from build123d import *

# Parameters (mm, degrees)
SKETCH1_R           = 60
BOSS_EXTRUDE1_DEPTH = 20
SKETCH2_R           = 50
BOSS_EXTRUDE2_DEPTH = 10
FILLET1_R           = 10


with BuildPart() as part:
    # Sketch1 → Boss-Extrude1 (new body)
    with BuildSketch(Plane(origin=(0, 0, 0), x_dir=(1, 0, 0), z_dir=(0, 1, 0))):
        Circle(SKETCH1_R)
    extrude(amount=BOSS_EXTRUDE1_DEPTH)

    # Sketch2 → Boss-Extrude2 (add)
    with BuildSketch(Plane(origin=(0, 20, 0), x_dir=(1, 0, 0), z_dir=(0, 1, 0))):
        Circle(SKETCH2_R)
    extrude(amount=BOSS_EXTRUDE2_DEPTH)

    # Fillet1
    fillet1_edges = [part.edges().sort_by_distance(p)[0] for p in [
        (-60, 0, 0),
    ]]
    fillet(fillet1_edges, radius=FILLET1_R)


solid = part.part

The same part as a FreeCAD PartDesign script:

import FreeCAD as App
import Part
import Sketcher
from FreeCAD import Vector
Q = App.Units.Quantity


def edges_at(feature, points):
    """Names of the edges that pass closest to the given points."""
    edges = feature.Shape.Edges
    near = lambda p: min(range(len(edges)), key=lambda i: edges[i].distToShape(Part.Vertex(*p))[0])
    return sorted({f"Edge{near(p) + 1}" for p in points})

doc = App.newDocument("Part")
params = doc.addObject("Spreadsheet::Sheet", "Params")
for row, (alias, value) in enumerate([
    ("sketch1_diameter", "120 mm"),
    ("pad1_length", "20 mm"),
    ("sketch2_diameter", "100 mm"),
    ("pad2_length", "10 mm"),
    ("fillet_radius", "10 mm"),
], start=1):
    params.set(f"A{row}", alias)
    params.set(f"B{row}", "=" + value)
    params.setAlias(f"B{row}", alias)

body = doc.addObject("PartDesign::Body", "Body")

sketch1 = body.newObject("Sketcher::SketchObject", "Sketch")
sketch1.AttachmentSupport = (doc.getObject("XZ_Plane"), [""])
sketch1.MapMode = "FlatFace"
sketch1.addGeometry(Part.Circle(Vector(0, 0, 0), Vector(0, 0, 1), 60), False)
sketch1.addConstraint([
    Sketcher.Constraint("Coincident", 0, 3, -1, 1),
    Sketcher.Constraint("Diameter", 0, Q("120 mm")),
])
sketch1.setExpression("Constraints[1]", "Params.sketch1_diameter")
pad1 = body.newObject("PartDesign::Pad", "Pad")
pad1.Profile = sketch1
pad1.setExpression("Length", "Params.pad1_length")
pad1.Reversed = True

sketch2 = body.newObject("Sketcher::SketchObject", "Sketch001")
sketch2.AttachmentSupport = (doc.getObject("XZ_Plane"), [""])
sketch2.MapMode = "FlatFace"
sketch2.AttachmentOffset = App.Placement(Vector(0, 0, -20), App.Rotation())
sketch2.addGeometry(Part.Circle(Vector(0, 0, 0), Vector(0, 0, 1), 50), False)
sketch2.addConstraint([
    Sketcher.Constraint("Coincident", 0, 3, -1, 1),
    Sketcher.Constraint("Diameter", 0, Q("100 mm")),
])
sketch2.setExpression("Constraints[1]", "Params.sketch2_diameter")
pad2 = body.newObject("PartDesign::Pad", "Pad001")
pad2.Profile = sketch2
pad2.setExpression("Length", "Params.pad2_length")
pad2.Reversed = True
doc.recompute()

fillet = body.newObject("PartDesign::Fillet", "Fillet")
fillet.Base = (pad2, edges_at(pad2, [(-60, 0, 0)]))
fillet.setExpression("Radius", "Params.fillet_radius")

doc.recompute()
